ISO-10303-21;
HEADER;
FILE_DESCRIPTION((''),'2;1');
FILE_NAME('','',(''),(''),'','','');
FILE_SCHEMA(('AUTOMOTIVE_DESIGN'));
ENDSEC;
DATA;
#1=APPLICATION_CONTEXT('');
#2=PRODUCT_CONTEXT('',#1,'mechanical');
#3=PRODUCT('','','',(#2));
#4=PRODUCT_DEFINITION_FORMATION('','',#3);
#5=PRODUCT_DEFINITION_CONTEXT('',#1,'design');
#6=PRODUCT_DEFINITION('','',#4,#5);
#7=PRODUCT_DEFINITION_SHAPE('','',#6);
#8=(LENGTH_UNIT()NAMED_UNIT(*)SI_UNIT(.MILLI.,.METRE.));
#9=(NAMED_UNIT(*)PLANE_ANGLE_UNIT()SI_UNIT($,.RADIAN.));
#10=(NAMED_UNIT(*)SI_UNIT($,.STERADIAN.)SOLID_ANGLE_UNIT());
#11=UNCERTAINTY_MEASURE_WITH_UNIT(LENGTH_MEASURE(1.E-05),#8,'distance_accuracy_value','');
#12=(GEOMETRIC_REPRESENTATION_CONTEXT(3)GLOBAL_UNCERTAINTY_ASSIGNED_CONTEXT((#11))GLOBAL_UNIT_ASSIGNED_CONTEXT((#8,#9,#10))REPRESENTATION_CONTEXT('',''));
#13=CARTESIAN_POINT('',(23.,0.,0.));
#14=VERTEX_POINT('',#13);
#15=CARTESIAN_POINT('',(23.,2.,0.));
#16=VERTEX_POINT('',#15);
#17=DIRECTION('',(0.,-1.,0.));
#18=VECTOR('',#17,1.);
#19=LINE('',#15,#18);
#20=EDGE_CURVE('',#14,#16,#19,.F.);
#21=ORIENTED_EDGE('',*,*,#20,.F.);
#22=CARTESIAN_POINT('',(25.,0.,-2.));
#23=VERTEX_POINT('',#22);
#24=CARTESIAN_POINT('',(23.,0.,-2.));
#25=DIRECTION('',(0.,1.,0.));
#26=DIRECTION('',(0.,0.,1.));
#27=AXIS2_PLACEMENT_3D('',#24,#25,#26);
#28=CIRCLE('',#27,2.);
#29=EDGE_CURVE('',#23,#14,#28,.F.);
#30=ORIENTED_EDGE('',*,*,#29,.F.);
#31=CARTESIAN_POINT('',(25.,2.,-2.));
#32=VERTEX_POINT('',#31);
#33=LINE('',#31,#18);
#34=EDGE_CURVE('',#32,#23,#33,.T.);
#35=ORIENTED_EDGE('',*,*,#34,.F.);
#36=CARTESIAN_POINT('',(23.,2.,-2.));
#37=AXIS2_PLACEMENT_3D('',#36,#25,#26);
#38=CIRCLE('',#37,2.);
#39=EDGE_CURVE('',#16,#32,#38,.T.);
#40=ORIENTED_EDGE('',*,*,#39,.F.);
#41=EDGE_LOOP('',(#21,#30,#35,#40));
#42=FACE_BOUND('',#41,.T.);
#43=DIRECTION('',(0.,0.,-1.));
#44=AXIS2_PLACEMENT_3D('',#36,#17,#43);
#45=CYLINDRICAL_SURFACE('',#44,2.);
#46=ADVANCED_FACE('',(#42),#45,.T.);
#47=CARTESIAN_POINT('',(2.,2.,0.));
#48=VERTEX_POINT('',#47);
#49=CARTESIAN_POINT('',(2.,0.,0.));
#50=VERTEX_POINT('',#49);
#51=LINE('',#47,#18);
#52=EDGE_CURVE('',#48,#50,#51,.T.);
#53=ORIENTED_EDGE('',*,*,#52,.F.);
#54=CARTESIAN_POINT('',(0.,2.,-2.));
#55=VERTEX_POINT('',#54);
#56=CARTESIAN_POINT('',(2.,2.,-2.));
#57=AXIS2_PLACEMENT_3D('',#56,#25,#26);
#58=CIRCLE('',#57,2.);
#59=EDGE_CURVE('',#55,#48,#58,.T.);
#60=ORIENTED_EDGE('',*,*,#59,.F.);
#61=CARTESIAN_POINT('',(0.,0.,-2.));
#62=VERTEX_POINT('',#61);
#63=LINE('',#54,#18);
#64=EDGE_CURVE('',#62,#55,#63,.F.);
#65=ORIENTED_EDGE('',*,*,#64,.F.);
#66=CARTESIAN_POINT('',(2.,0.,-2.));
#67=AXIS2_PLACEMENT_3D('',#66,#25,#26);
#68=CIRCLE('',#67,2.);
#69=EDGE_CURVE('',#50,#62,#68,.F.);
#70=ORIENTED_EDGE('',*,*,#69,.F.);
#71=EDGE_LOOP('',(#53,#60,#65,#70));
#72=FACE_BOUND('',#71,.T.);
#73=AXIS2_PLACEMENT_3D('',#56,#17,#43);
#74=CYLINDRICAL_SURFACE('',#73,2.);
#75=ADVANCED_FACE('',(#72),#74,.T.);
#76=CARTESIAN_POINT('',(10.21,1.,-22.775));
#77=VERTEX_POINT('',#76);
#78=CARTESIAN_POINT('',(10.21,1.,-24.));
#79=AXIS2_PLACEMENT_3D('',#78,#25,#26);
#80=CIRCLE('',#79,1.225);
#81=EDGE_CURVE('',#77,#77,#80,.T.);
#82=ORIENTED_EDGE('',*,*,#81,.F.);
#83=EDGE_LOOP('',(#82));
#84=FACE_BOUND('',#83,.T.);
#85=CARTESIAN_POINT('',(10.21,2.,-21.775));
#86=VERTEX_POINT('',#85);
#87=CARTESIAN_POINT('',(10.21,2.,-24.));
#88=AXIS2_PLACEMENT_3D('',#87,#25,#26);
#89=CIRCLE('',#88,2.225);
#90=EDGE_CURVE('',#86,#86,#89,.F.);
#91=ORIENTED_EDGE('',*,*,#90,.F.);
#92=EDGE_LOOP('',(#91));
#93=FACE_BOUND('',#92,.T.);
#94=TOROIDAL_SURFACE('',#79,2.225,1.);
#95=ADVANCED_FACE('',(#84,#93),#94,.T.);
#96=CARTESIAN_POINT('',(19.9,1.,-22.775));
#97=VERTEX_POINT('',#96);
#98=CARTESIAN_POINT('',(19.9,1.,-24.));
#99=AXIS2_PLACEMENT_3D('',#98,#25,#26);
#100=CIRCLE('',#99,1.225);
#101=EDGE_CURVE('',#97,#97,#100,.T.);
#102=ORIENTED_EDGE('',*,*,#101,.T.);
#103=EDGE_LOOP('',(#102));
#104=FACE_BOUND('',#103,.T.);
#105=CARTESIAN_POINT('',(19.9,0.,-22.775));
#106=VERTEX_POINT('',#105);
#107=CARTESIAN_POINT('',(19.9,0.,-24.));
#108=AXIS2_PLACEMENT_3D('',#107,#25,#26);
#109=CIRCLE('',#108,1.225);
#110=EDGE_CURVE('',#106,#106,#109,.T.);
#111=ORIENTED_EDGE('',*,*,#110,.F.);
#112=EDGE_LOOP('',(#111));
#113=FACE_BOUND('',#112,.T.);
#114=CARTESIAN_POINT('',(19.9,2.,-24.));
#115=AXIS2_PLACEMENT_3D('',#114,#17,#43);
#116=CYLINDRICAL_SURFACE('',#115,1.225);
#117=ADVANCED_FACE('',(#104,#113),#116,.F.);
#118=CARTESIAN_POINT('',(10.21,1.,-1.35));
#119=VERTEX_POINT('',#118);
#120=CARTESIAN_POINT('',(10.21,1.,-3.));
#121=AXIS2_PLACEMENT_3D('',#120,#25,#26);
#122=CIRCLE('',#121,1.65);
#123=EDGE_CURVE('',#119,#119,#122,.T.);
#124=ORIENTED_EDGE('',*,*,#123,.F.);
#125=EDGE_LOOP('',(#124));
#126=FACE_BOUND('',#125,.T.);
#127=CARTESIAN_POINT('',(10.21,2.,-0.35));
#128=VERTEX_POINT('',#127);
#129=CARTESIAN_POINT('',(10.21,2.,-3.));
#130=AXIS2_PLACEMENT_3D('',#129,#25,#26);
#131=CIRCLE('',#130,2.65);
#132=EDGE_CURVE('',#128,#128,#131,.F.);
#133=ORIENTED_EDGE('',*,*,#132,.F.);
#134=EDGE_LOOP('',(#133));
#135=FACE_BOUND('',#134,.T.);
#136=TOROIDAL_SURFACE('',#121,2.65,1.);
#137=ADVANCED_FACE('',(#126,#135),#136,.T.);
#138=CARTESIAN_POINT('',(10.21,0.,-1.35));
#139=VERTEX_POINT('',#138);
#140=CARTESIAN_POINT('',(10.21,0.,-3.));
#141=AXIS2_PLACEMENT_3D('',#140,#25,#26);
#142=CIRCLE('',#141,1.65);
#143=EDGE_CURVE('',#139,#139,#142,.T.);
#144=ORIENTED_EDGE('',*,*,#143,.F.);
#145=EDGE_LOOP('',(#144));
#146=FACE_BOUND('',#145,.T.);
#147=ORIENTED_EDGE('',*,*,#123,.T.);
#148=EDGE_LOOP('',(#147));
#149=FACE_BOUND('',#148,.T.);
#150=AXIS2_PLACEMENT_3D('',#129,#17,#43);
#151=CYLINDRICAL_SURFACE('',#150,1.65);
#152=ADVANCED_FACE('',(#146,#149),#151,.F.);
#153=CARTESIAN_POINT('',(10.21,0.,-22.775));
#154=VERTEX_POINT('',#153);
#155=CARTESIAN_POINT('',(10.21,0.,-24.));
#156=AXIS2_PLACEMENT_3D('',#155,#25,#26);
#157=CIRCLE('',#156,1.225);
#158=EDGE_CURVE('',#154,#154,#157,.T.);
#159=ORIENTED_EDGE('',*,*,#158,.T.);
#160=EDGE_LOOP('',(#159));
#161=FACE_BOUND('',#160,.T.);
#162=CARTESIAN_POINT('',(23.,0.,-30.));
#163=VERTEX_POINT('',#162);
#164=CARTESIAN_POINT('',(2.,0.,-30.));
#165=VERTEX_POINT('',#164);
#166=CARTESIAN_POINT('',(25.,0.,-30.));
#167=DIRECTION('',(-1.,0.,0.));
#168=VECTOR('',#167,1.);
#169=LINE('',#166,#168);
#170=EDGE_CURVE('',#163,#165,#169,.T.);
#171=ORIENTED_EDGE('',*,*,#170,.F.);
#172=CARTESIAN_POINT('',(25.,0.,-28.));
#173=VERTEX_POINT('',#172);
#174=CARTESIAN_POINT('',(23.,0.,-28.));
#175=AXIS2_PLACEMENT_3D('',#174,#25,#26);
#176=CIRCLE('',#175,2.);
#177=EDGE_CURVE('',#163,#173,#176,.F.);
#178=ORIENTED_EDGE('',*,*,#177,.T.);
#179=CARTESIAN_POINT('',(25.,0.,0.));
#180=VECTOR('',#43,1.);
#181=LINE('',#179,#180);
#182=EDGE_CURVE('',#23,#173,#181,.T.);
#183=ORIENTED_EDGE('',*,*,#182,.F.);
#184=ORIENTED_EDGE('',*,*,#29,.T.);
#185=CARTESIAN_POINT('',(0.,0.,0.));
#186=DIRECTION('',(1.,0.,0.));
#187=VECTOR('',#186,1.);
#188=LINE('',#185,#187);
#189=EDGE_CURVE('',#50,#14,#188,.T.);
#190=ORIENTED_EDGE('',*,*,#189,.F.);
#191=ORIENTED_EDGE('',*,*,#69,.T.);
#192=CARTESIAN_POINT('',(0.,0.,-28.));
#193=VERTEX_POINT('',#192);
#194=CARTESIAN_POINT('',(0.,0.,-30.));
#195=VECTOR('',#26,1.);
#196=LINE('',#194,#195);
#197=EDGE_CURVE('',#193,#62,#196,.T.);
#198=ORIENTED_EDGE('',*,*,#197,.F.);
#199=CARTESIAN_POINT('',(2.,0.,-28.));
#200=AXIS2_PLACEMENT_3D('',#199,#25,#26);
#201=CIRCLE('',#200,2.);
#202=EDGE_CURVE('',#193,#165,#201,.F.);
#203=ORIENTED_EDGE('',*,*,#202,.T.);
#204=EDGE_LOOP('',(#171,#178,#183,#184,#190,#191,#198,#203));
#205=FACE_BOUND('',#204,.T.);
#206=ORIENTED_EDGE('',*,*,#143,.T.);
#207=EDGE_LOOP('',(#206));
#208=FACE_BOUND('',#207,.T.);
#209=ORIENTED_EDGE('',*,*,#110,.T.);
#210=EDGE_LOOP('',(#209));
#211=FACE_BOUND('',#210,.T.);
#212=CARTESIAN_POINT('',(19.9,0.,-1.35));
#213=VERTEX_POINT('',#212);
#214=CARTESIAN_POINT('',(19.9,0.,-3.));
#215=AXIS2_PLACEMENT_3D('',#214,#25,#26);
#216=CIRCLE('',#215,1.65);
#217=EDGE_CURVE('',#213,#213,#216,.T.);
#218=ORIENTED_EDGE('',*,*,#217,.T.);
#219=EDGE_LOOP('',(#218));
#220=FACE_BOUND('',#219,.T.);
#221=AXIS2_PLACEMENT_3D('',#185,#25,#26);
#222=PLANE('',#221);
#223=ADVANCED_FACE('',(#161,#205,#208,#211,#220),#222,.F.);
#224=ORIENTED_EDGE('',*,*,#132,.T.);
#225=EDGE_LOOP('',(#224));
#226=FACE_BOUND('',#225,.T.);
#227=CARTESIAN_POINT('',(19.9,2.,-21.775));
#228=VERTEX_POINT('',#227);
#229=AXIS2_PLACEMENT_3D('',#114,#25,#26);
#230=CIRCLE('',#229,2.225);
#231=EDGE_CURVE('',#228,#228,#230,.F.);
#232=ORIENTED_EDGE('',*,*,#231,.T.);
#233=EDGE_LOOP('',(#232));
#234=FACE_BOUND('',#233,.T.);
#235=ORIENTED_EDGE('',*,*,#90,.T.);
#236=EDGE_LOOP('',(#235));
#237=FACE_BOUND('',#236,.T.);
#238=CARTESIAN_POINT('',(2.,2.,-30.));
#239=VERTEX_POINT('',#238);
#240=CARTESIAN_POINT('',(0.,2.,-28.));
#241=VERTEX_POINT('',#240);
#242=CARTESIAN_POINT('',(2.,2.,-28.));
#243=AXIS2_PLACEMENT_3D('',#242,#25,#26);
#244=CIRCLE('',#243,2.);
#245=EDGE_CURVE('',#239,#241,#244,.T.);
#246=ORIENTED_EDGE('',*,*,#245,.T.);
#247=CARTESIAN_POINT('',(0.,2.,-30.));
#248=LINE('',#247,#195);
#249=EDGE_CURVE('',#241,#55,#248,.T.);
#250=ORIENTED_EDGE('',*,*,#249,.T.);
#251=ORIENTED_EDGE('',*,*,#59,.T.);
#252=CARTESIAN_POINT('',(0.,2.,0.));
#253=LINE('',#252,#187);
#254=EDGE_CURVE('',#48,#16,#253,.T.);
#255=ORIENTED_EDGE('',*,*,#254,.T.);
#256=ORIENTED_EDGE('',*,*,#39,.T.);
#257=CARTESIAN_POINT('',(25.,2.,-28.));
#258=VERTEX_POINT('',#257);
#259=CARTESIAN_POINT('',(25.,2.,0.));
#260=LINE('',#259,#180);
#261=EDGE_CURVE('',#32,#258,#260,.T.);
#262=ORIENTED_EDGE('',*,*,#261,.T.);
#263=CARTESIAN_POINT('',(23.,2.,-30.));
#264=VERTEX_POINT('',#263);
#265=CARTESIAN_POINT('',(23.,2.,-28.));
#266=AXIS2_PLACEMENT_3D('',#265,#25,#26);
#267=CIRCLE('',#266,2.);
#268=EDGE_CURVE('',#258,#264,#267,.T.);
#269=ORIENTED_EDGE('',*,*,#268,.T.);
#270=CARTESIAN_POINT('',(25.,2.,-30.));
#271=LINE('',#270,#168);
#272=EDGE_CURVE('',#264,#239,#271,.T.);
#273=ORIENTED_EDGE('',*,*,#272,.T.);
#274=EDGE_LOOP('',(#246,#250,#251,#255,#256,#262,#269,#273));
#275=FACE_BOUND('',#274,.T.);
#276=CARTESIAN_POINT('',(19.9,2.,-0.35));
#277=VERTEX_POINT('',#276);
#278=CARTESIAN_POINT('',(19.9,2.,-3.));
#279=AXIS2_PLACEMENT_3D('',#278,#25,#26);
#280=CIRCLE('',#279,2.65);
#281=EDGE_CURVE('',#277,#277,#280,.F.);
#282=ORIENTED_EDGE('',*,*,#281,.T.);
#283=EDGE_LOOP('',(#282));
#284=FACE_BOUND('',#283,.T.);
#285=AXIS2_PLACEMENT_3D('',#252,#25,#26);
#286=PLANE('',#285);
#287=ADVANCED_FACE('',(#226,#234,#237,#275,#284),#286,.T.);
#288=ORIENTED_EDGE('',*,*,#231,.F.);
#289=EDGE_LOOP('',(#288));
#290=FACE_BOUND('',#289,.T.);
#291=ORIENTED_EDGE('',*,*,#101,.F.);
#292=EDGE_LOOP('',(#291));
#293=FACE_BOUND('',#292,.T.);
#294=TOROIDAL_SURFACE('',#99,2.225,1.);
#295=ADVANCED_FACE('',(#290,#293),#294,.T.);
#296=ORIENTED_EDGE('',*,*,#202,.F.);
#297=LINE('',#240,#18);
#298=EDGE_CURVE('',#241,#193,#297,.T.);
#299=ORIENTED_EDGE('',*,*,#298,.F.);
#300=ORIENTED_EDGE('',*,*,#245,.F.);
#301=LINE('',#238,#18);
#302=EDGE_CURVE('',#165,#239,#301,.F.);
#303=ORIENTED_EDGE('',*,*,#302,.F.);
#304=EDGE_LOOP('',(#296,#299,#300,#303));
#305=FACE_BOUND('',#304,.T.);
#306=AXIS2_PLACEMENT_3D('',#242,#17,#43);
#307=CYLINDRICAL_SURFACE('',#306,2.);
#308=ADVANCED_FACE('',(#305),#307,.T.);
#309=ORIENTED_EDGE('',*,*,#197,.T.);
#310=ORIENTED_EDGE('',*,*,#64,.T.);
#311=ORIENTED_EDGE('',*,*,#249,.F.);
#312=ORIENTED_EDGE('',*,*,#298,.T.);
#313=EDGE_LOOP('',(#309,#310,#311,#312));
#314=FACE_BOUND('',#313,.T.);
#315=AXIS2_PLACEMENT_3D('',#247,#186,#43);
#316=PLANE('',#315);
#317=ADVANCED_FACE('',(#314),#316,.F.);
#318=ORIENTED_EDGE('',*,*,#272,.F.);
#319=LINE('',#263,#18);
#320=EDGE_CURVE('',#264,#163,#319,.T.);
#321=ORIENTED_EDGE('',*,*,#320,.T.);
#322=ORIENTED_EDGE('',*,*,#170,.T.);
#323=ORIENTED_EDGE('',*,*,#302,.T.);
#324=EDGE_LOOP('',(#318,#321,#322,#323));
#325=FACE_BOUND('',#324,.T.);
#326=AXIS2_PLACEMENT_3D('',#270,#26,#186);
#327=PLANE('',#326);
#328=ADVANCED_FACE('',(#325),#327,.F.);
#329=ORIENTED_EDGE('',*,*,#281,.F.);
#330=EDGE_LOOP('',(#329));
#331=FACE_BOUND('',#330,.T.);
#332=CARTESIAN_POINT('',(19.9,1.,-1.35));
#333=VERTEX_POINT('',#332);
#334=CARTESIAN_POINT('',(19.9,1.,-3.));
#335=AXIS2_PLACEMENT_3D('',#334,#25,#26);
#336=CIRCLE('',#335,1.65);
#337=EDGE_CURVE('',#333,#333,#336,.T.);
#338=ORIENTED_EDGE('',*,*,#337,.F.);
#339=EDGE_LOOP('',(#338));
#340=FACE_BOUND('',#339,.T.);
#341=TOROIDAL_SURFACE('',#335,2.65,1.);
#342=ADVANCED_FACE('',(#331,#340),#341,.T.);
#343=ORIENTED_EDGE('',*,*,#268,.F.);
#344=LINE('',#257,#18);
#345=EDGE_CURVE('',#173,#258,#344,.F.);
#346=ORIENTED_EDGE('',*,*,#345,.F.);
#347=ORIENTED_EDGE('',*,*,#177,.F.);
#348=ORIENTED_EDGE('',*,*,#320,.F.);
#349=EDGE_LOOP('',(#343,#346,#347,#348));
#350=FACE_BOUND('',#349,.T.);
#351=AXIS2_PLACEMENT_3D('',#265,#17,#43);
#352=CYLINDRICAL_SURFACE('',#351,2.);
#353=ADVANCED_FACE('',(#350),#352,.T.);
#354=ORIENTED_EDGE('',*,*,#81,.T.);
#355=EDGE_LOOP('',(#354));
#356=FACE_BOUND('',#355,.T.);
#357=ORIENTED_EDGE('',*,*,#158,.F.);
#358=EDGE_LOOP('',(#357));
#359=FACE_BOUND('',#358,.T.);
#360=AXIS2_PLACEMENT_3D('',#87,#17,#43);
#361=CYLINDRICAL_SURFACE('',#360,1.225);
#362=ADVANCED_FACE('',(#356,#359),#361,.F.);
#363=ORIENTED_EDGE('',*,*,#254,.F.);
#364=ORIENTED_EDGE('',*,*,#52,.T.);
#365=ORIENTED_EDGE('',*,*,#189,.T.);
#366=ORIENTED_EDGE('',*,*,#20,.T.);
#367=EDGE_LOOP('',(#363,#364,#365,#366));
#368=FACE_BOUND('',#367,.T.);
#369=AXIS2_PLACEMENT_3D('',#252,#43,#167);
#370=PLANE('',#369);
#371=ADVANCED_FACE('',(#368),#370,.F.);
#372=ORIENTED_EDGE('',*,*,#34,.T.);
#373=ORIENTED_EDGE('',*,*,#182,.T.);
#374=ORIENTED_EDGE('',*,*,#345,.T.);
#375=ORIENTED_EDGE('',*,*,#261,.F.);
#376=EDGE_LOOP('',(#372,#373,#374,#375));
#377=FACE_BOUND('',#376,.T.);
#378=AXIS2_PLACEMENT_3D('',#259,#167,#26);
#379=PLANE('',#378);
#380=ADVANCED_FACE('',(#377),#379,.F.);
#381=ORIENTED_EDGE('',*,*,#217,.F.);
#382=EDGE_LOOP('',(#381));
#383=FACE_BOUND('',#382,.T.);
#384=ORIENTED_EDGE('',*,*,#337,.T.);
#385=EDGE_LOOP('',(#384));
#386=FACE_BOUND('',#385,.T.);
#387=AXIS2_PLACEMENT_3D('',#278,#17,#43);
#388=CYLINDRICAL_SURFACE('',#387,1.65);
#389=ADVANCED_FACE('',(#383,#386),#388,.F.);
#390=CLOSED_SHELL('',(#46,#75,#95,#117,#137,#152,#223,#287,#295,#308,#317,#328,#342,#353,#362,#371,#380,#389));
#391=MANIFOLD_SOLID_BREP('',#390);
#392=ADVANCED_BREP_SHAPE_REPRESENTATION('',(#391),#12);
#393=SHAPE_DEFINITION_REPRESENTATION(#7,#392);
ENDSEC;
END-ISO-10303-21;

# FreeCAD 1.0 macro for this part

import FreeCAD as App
import Part
import Sketcher
from FreeCAD import Vector
Q = App.Units.Quantity


def edges_at(feature, points):
    """Names of the edges that pass closest to the given points."""
    edges = feature.Shape.Edges
    near = lambda p: min(range(len(edges)), key=lambda i: edges[i].distToShape(Part.Vertex(*p))[0])
    return sorted({f"Edge{near(p) + 1}" for p in points})


def add_polygon(sketch, points):
    """Adds a closed chain of lines whose ends are joined by coincident constraints."""
    first, n = sketch.GeometryCount, len(points)
    for a, b in zip(points, points[1:] + points[:1]):
        sketch.addGeometry(Part.LineSegment(App.Vector(*a, 0), App.Vector(*b, 0)), False)
    for i in range(n):
        sketch.addConstraint(Sketcher.Constraint("Coincident", first + i, 2, first + (i + 1) % n, 1))

doc = App.newDocument("Part")
params = doc.addObject("Spreadsheet::Sheet", "Params")
for row, (alias, value) in enumerate([
    ("sketch1_diameter", "3.3 mm"),
    ("sketch1_diameter2", "2.45 mm"),
    ("sketch1_width", "25 mm"),
    ("sketch1_height", "30 mm"),
    ("pad1_length", "2 mm"),
    ("fillet_radius", "2 mm"),
    ("fillet2_radius", "1 mm"),
], start=1):
    params.set(f"A{row}", alias)
    params.set(f"B{row}", "=" + value)
    params.setAlias(f"B{row}", alias)

body = doc.addObject("PartDesign::Body", "Body")

sketch1 = body.newObject("Sketcher::SketchObject", "Sketch")
sketch1.AttachmentSupport = (doc.getObject("XZ_Plane"), [""])
sketch1.MapMode = "FlatFace"
add_polygon(sketch1, [(0, -30), (0, 0), (25, 0), (25, -30)])
sketch1.addGeometry(Part.Circle(Vector(10.2, -3, 0), Vector(0, 0, 1), 1.6), False)
sketch1.addGeometry(Part.Circle(Vector(19.9, -3, 0), Vector(0, 0, 1), 1.6), False)
sketch1.addGeometry(Part.Circle(Vector(10.2, -24, 0), Vector(0, 0, 1), 1.2), False)
sketch1.addGeometry(Part.Circle(Vector(19.9, -24, 0), Vector(0, 0, 1), 1.2), False)
sketch1.addConstraint([
    Sketcher.Constraint("Vertical", 0),
    Sketcher.Constraint("Horizontal", 1),
    Sketcher.Constraint("Vertical", 2),
    Sketcher.Constraint("Horizontal", 3),
    Sketcher.Constraint("Coincident", 0, 2, -1, 1),
    Sketcher.Constraint("Equal", 4, 5),
    Sketcher.Constraint("Equal", 6, 7),
    Sketcher.Constraint("Horizontal", 4, 3, 5, 3),
    Sketcher.Constraint("Horizontal", 6, 3, 7, 3),
    Sketcher.Constraint("Vertical", 4, 3, 6, 3),
    Sketcher.Constraint("Vertical", 5, 3, 7, 3),
    Sketcher.Constraint("Diameter", 4, Q("3.3 mm")),
    Sketcher.Constraint("Diameter", 6, Q("2.45 mm")),
    Sketcher.Constraint("DistanceX", 1, 1, 1, 2, Q("25 mm")),
    Sketcher.Constraint("DistanceY", 0, 1, 0, 2, Q("30 mm")),
    Sketcher.Constraint("DistanceY", 4, 3, -1, 1, Q("3 mm")),
    Sketcher.Constraint("DistanceY", 6, 3, -1, 1, Q("24 mm")),
    Sketcher.Constraint("DistanceX", -1, 1, 5, 3, Q("19.9 mm")),
    Sketcher.Constraint("DistanceX", -1, 1, 4, 3, Q("10.21 mm")),
])
sketch1.setExpression("Constraints[15]", "Params.sketch1_diameter")
sketch1.setExpression("Constraints[16]", "Params.sketch1_diameter2")
sketch1.setExpression("Constraints[17]", "Params.sketch1_width")
sketch1.setExpression("Constraints[18]", "Params.sketch1_height")
pad1 = body.newObject("PartDesign::Pad", "Pad")
pad1.Profile = sketch1
pad1.setExpression("Length", "Params.pad1_length")
pad1.Reversed = True
doc.recompute()

fillet = body.newObject("PartDesign::Fillet", "Fillet")
fillet.Base = (pad1, edges_at(pad1, [
    (0, 1, -30),
    (25, 1, -30),
    (25, 1, 0),
    (0, 1, 0),
]))
fillet.setExpression("Radius", "Params.fillet_radius")
doc.recompute()

fillet2 = body.newObject("PartDesign::Fillet", "Fillet001")
fillet2.Base = (fillet, edges_at(fillet, [
    (19.9, 2, -25.225),
    (10.21, 2, -25.225),
    (10.21, 2, -4.65),
    (19.9, 2, -4.65),
]))
fillet2.setExpression("Radius", "Params.fillet2_radius")

doc.recompute()
